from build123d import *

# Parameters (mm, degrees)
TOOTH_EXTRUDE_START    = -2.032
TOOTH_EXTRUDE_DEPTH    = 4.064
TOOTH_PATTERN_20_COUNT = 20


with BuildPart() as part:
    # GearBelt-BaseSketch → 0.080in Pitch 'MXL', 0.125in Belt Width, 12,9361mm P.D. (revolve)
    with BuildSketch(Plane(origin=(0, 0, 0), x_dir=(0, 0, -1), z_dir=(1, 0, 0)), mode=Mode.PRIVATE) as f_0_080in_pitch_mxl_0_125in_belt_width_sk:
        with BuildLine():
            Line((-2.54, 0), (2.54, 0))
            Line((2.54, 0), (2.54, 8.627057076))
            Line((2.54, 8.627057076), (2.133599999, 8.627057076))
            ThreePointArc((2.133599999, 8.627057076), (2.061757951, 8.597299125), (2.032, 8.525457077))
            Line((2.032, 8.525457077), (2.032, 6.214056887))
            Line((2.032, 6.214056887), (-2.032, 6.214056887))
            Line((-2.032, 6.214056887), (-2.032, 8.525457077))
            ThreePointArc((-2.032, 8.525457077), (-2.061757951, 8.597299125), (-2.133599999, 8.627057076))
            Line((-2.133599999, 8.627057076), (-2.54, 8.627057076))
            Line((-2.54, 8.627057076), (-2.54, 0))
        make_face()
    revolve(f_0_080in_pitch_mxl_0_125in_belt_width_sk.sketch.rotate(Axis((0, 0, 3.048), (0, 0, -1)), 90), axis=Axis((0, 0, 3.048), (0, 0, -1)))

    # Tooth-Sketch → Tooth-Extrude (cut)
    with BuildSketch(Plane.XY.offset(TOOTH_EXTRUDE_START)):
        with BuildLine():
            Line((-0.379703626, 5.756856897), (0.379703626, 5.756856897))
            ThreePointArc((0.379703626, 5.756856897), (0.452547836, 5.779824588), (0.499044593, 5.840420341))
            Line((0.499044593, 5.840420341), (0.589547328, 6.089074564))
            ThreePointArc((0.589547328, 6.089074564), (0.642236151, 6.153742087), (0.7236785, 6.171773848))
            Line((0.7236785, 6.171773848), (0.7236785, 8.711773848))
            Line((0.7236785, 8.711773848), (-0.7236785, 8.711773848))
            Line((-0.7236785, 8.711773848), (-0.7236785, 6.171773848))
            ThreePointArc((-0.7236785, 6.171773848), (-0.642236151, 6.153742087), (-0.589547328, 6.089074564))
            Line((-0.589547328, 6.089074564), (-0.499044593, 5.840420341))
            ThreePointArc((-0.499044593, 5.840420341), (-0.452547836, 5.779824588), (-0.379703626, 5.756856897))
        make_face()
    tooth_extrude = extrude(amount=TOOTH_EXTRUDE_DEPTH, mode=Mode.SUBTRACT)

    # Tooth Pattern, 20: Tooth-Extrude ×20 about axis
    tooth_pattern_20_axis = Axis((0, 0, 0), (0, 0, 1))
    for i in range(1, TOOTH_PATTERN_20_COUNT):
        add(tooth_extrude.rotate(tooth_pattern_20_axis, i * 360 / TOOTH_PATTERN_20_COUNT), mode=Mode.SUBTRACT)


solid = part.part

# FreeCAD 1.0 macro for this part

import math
import FreeCAD as App
import Part
import Sketcher
Q = App.Units.Quantity

doc = App.newDocument("Part")
params = doc.addObject("Spreadsheet::Sheet", "Params")
for row, (alias, value) in enumerate([
    ("sketch1_height", "0.2 in"),
    ("sketch1_radius", "0.004 in"),
    ("sketch1_height2", "0.16 in"),
    ("sketch1_width", "0.091 in"),
    ("revolution_angle", "360 deg"),
    ("sketch2_height", "0.1 in"),
    ("sketch2_radius", "0.005 in"),
    ("pocket1_length", "0.16 in"),
], start=1):
    params.set(f"A{row}", alias)
    params.set(f"B{row}", "=" + value)
    params.setAlias(f"B{row}", alias)

body = doc.addObject("PartDesign::Body", "Body")

# Sketch on YZ plane
sketch1 = body.newObject("Sketcher::SketchObject", "Sketch")
sketch1.AttachmentSupport = (doc.getObject("YZ_Plane"), [""])
sketch1.MapMode = "FlatFace"
sketch1.addGeometry([
    Part.LineSegment(App.Vector(0, 2.54, 0), App.Vector(0, -2.54, 0)),  # 0
    Part.LineSegment(App.Vector(0, -2.54, 0), App.Vector(8.63, -2.54, 0)),  # 1
    Part.LineSegment(App.Vector(8.63, -2.54, 0), App.Vector(8.63, -2.13, 0)),  # 2
    Part.ArcOfCircle(Part.Circle(App.Vector(8.53, -2.13, 0), App.Vector(0, 0, 1), 0.1), math.radians(0), math.radians(90)),  # 3
    Part.LineSegment(App.Vector(8.53, -2.03, 0), App.Vector(6.21, -2.03, 0)),  # 4
    Part.LineSegment(App.Vector(6.21, -2.03, 0), App.Vector(6.21, 2.03, 0)),  # 5
    Part.LineSegment(App.Vector(6.21, 2.03, 0), App.Vector(8.53, 2.03, 0)),  # 6
    Part.ArcOfCircle(Part.Circle(App.Vector(8.53, 2.13, 0), App.Vector(0, 0, 1), 0.1), math.radians(-90), math.radians(0)),  # 7
    Part.LineSegment(App.Vector(8.63, 2.13, 0), App.Vector(8.63, 2.54, 0)),  # 8
    Part.LineSegment(App.Vector(8.63, 2.54, 0), App.Vector(0, 2.54, 0)),  # 9
], False)
sketch1.addConstraint([
    Sketcher.Constraint("Coincident", 0, 2, 1, 1),
    Sketcher.Constraint("Coincident", 1, 2, 2, 1),
    Sketcher.Constraint("Tangent", 2, 2, 3, 1),
    Sketcher.Constraint("Tangent", 3, 2, 4, 1),
    Sketcher.Constraint("Coincident", 4, 2, 5, 1),
    Sketcher.Constraint("Coincident", 5, 2, 6, 1),
    Sketcher.Constraint("Tangent", 6, 2, 7, 1),
    Sketcher.Constraint("Tangent", 7, 2, 8, 1),
    Sketcher.Constraint("Coincident", 8, 2, 9, 1),
    Sketcher.Constraint("Coincident", 9, 2, 0, 1),
    Sketcher.Constraint("Vertical", 0),
    Sketcher.Constraint("Horizontal", 1),
    Sketcher.Constraint("Vertical", 2),
    Sketcher.Constraint("Horizontal", 4),
    Sketcher.Constraint("Vertical", 5),
    Sketcher.Constraint("Horizontal", 6),
    Sketcher.Constraint("Vertical", 8),
    Sketcher.Constraint("Horizontal", 9),
    Sketcher.Constraint("Equal", 3, 7),
    Sketcher.Constraint("Symmetric", 0, 2, 9, 2, -1, 1),
    Sketcher.Constraint("Symmetric", 3, 3, 7, 3, -1),
    Sketcher.Constraint("DistanceY", 0, 2, 0, 1, Q("0.2 in")),
    Sketcher.Constraint("Radius", 3, Q("0.004 in")),
    Sketcher.Constraint("DistanceY", 5, 1, 5, 2, Q("0.16 in")),
    Sketcher.Constraint("DistanceX", 4, 2, 4, 1, Q("0.091 in")),
    Sketcher.Constraint("DistanceX", 1, 1, 1, 2, Q("8.627057 mm")),
])
sketch1.setExpression("Constraints[21]", "Params.sketch1_height")
sketch1.setExpression("Constraints[22]", "Params.sketch1_radius")
sketch1.setExpression("Constraints[23]", "Params.sketch1_height2")
sketch1.setExpression("Constraints[24]", "Params.sketch1_width")
revolution = body.newObject("PartDesign::Revolution", "Revolution")
revolution.Profile = sketch1
revolution.ReferenceAxis = (sketch1, ["V_Axis"])
revolution.setExpression("Angle", "Params.revolution_angle")

# Sketch on XY plane
sketch2 = body.newObject("Sketcher::SketchObject", "Sketch001")
sketch2.AttachmentSupport = (doc.getObject("XY_Plane"), [""])
sketch2.MapMode = "FlatFace"
sketch2.AttachmentOffset = App.Placement(App.Vector(0, 0, -0.08 * 25.4), App.Rotation())
sketch2.addGeometry([
    Part.LineSegment(App.Vector(-0.38, 5.76, 0), App.Vector(0.38, 5.76, 0)),  # 0
    Part.ArcOfCircle(Part.Circle(App.Vector(0.38, 5.88, 0), App.Vector(0, 0, 1), 0.13), math.radians(-90), math.radians(-20)),  # 1
    Part.LineSegment(App.Vector(0.5, 5.84, 0), App.Vector(0.59, 6.09, 0)),  # 2
    Part.ArcOfCircle(Part.Circle(App.Vector(0.71, 6.05, 0), App.Vector(0, 0, 1), 0.13), math.radians(83), math.radians(160)),  # 3
    Part.LineSegment(App.Vector(0.72, 6.17, 0), App.Vector(0.72, 8.71, 0)),  # 4
    Part.LineSegment(App.Vector(0.72, 8.71, 0), App.Vector(-0.72, 8.71, 0)),  # 5
    Part.LineSegment(App.Vector(-0.72, 8.71, 0), App.Vector(-0.72, 6.17, 0)),  # 6
    Part.ArcOfCircle(Part.Circle(App.Vector(-0.71, 6.05, 0), App.Vector(0, 0, 1), 0.13), math.radians(20), math.radians(97)),  # 7
    Part.LineSegment(App.Vector(-0.59, 6.09, 0), App.Vector(-0.5, 5.84, 0)),  # 8
    Part.ArcOfCircle(Part.Circle(App.Vector(-0.38, 5.88, 0), App.Vector(0, 0, 1), 0.13), math.radians(-160), math.radians(-90)),  # 9
], False)
sketch2.addConstraint([
    Sketcher.Constraint("Tangent", 0, 2, 1, 1),
    Sketcher.Constraint("Tangent", 1, 2, 2, 1),
    Sketcher.Constraint("Tangent", 2, 2, 3, 2),
    Sketcher.Constraint("Coincident", 3, 1, 4, 1),
    Sketcher.Constraint("Coincident", 4, 2, 5, 1),
    Sketcher.Constraint("Coincident", 5, 2, 6, 1),
    Sketcher.Constraint("Coincident", 6, 2, 7, 2),
    Sketcher.Constraint("Tangent", 7, 1, 8, 1),
    Sketcher.Constraint("Tangent", 8, 2, 9, 1),
    Sketcher.Constraint("Tangent", 9, 2, 0, 1),
    Sketcher.Constraint("Horizontal", 0),
    Sketcher.Constraint("Vertical", 4),
    Sketcher.Constraint("Horizontal", 5),
    Sketcher.Constraint("Vertical", 6),
    Sketcher.Constraint("Equal", 1, 3),
    Sketcher.Constraint("Equal", 3, 7),
    Sketcher.Constraint("Equal", 7, 9),
    Sketcher.Constraint("Symmetric", 3, 3, 7, 3, -2),
    Sketcher.Constraint("Horizontal", 3, 1, 6, 2),
    Sketcher.Constraint("Horizontal", 2, 2, 7, 1),
    Sketcher.Constraint("DistanceY", 4, 1, 4, 2, Q("0.1 in")),
    Sketcher.Constraint("Angle", 2, Q("70 deg")),
    Sketcher.Constraint("Radius", 1, Q("0.005 in")),
    Sketcher.Constraint("DistanceY", 2, 2, 3, 1, Q("0.082699 mm")),
    Sketcher.Constraint("DistanceX", 0, 1, 0, 2, Q("0.759407 mm")),
    Sketcher.Constraint("DistanceX", 5, 2, 5, 1, Q("1.447357 mm")),
    Sketcher.Constraint("DistanceY", -1, 1, 3, 3, Q("6.045638 mm")),
])
sketch2.setExpression("Constraints[20]", "Params.sketch2_height")
sketch2.setExpression("Constraints[22]", "Params.sketch2_radius")
pocket1 = body.newObject("PartDesign::Pocket", "Pocket")
pocket1.Profile = sketch2
pocket1.setExpression("Length", "Params.pocket1_length")
pocket1.Reversed = True
doc.recompute()

polarpattern = body.newObject("PartDesign::PolarPattern", "PolarPattern")
polarpattern.Originals = [pocket1]
polarpattern.Axis = (doc.getObject("Z_Axis"), [""])
polarpattern.Angle = 360
polarpattern.Occurrences = 20
body.Tip = polarpattern

doc.recompute()
